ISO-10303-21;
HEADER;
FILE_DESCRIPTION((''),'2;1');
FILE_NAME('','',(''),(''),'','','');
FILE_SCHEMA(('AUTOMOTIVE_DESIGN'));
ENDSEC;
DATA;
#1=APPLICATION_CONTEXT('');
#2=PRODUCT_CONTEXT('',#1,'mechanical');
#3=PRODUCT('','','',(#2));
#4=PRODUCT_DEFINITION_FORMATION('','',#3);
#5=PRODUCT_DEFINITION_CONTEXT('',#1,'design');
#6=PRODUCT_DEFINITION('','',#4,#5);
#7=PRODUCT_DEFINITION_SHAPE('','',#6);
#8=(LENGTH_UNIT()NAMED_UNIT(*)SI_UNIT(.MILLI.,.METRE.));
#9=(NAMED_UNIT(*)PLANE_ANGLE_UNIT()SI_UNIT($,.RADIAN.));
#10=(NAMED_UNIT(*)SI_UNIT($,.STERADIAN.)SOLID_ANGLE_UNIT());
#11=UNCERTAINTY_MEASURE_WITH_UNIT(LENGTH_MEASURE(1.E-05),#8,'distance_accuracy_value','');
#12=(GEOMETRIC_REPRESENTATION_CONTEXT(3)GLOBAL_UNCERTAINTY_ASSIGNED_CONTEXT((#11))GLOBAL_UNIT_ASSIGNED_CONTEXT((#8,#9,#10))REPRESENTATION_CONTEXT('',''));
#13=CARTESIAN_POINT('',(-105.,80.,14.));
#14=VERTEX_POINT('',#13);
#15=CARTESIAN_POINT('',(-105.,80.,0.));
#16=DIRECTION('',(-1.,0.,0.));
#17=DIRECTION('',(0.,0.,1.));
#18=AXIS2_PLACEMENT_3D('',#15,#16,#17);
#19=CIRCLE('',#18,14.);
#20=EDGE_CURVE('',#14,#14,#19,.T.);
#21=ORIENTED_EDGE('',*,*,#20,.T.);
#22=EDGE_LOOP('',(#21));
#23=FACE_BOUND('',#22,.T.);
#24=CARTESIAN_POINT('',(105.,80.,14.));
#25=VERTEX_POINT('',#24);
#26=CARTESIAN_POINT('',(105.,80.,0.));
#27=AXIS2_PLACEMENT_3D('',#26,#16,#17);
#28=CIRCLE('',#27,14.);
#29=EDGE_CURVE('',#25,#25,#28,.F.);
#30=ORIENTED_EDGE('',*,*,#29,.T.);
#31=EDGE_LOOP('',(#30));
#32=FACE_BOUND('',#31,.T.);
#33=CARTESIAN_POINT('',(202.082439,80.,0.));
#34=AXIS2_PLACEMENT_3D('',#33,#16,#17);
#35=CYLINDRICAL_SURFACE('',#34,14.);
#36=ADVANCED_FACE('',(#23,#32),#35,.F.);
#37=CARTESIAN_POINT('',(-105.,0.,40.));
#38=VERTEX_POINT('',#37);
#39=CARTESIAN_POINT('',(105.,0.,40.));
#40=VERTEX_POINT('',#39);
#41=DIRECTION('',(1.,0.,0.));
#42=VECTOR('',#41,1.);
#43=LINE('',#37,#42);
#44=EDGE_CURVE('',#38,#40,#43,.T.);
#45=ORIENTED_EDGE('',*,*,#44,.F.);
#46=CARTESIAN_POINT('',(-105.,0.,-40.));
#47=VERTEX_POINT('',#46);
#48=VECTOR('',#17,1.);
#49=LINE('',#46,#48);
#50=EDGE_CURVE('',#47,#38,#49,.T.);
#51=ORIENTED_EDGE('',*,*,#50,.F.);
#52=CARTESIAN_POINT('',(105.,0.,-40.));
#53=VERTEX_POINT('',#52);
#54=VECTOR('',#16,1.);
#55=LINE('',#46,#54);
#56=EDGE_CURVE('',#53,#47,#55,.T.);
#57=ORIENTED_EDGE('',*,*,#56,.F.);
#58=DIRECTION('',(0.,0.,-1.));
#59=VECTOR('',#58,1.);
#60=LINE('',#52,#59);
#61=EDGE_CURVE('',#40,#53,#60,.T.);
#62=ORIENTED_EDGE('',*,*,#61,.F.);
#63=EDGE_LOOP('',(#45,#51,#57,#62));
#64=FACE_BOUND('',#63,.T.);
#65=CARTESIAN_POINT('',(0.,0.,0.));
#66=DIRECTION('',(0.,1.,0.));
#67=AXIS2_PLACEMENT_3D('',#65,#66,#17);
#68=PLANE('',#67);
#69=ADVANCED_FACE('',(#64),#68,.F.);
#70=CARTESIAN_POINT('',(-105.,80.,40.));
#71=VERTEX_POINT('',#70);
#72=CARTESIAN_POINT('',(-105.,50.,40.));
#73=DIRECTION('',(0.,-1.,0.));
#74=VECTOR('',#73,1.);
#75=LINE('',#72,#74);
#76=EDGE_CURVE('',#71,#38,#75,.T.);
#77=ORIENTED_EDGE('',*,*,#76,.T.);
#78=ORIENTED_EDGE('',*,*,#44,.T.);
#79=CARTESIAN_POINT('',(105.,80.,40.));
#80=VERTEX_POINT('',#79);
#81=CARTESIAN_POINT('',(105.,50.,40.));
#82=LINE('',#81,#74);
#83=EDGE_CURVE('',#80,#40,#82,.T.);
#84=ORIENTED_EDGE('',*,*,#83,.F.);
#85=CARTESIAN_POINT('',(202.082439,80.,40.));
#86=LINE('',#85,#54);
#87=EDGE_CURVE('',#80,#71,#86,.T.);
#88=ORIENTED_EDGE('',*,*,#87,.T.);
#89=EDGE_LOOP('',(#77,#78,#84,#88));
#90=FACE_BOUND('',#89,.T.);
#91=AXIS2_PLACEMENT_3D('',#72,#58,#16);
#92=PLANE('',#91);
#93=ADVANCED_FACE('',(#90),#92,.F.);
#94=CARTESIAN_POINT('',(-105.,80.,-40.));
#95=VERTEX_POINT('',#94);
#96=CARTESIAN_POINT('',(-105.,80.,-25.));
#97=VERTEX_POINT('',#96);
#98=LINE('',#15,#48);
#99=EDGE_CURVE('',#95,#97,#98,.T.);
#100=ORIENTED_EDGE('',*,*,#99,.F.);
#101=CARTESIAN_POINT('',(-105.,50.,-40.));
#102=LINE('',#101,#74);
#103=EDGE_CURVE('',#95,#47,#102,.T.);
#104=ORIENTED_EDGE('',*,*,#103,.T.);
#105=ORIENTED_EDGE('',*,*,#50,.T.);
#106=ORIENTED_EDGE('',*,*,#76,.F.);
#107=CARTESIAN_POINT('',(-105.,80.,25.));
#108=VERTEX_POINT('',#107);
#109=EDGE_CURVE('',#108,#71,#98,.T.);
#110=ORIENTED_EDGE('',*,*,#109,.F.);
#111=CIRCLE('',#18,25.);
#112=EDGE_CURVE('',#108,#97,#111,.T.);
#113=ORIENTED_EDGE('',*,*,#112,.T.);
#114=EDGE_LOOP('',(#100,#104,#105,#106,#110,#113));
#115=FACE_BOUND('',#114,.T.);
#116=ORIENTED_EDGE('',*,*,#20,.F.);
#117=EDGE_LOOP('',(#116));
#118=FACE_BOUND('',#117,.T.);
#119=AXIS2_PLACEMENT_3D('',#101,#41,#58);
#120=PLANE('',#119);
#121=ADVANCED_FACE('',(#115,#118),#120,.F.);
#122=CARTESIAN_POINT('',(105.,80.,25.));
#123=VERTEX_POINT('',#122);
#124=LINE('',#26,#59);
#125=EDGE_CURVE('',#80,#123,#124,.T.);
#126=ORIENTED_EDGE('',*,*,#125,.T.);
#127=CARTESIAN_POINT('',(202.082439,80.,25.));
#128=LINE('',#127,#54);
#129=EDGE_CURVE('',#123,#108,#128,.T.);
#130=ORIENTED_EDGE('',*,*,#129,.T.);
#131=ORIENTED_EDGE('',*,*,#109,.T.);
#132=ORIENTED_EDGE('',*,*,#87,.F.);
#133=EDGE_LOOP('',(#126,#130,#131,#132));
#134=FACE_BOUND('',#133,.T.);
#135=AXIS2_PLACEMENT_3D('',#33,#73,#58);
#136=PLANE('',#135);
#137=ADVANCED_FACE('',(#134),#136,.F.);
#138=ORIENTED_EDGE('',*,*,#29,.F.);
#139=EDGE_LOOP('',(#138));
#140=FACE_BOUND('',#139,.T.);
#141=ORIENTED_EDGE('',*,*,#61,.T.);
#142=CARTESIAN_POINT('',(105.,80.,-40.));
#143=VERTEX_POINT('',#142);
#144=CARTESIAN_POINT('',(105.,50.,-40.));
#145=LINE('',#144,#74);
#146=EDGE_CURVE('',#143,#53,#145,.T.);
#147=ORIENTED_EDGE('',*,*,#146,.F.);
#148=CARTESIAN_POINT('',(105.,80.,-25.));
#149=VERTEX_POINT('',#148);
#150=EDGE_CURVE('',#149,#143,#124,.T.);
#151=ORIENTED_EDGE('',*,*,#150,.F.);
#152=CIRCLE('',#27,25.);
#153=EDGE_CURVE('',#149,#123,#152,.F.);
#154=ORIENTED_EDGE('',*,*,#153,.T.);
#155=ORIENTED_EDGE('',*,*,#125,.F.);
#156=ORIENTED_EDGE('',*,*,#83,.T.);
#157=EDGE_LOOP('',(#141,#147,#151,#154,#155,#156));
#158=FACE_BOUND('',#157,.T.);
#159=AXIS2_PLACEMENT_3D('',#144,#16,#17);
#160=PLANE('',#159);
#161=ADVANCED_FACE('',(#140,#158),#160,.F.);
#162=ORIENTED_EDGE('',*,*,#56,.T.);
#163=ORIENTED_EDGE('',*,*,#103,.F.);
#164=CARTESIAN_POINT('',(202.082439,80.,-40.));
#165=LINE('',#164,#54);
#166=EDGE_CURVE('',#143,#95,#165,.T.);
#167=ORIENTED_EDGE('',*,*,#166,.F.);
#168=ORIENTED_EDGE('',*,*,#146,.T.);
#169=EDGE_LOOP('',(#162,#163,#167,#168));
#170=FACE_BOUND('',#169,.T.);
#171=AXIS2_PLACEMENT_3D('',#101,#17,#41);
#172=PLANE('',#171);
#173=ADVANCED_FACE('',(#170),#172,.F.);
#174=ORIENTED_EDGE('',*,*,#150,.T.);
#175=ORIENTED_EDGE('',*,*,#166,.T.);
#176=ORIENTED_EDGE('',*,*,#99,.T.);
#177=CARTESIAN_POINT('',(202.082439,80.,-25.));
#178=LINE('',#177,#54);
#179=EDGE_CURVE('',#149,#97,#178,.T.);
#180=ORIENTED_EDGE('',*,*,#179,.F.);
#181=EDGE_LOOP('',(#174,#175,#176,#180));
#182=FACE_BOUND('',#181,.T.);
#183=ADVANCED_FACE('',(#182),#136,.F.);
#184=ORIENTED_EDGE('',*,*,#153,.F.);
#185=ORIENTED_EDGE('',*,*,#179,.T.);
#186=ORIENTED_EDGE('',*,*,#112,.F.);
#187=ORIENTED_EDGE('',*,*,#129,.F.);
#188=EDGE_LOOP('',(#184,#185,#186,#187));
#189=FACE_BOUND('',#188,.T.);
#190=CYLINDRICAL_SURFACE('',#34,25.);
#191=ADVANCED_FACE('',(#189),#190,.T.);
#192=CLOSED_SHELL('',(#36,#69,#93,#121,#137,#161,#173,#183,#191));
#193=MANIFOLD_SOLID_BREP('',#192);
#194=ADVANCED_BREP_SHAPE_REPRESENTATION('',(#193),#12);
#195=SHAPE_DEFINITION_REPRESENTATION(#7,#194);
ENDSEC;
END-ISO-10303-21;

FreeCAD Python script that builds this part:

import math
import FreeCAD as App
import Part
import Sketcher

V = App.Vector

doc = App.newDocument("Part")
body = doc.addObject("PartDesign::Body", "Body")

# Sketch on XZ plane
sketch1 = doc.addObject("Sketcher::SketchObject", "Sketch")
body.addObject(sketch1)
sketch1.AttachmentSupport = (doc.XZ_Plane, [""])
sketch1.MapMode = "FlatFace"
sketch1.addGeometry(Part.LineSegment(V(-105, -40, 0), V(-105, 40, 0)), False)
sketch1.addGeometry(Part.LineSegment(V(-105, 40, 0), V(105, 40, 0)), False)
sketch1.addGeometry(Part.LineSegment(V(105, 40, 0), V(105, -40, 0)), False)
sketch1.addGeometry(Part.LineSegment(V(105, -40, 0), V(-105, -40, 0)), False)
sketch1.addConstraint(Sketcher.Constraint("Coincident", 0, 2, 1, 1))
sketch1.addConstraint(Sketcher.Constraint("Coincident", 1, 2, 2, 1))
sketch1.addConstraint(Sketcher.Constraint("Coincident", 2, 2, 3, 1))
sketch1.addConstraint(Sketcher.Constraint("Coincident", 3, 2, 0, 1))
sketch1.addConstraint(Sketcher.Constraint("Vertical", 0))
sketch1.addConstraint(Sketcher.Constraint("Horizontal", 1))
sketch1.addConstraint(Sketcher.Constraint("Vertical", 2))
sketch1.addConstraint(Sketcher.Constraint("Horizontal", 3))
sketch1.addConstraint(Sketcher.Constraint("Symmetric", 0, 2, 2, 2, -1, 1))
sketch1.addConstraint(Sketcher.Constraint("DistanceX", 1, 1, 1, 2, 210.0))
sketch1.addConstraint(Sketcher.Constraint("DistanceY", 0, 1, 0, 2, 80.0))
pad1 = doc.addObject("PartDesign::Pad", "Pad")
body.addObject(pad1)
pad1.Profile = sketch1
pad1.Length = 50
pad1.Reversed = True

# Sketch on YZ plane
sketch2 = doc.addObject("Sketcher::SketchObject", "Sketch001")
body.addObject(sketch2)
sketch2.AttachmentSupport = (doc.YZ_Plane, [""])
sketch2.MapMode = "FlatFace"
sketch2.AttachmentOffset = App.Placement(V(0, 0, -105), App.Rotation())
sketch2.addGeometry(Part.LineSegment(V(80, 40, 0), V(80, 25, 0)), False)
sketch2.addGeometry(Part.ArcOfCircle(Part.Circle(V(80, 0, 0), V(0, 0, 1), 25), math.radians(-90), math.radians(90)), False)
sketch2.addGeometry(Part.LineSegment(V(80, -25, 0), V(80, -40, 0)), False)
sketch2.addGeometry(Part.LineSegment(V(80, -40, 0), V(50, -40, 0)), False)
sketch2.addGeometry(Part.LineSegment(V(50, -40, 0), V(50, 40, 0)), False)
sketch2.addGeometry(Part.LineSegment(V(50, 40, 0), V(80, 40, 0)), False)
sketch2.addGeometry(Part.Circle(V(80, 0, 0), V(0, 0, 1), 14), False)
sketch2.addConstraint(Sketcher.Constraint("Coincident", 0, 2, 1, 2))
sketch2.addConstraint(Sketcher.Constraint("Coincident", 1, 1, 2, 1))
sketch2.addConstraint(Sketcher.Constraint("Coincident", 2, 2, 3, 1))
sketch2.addConstraint(Sketcher.Constraint("Coincident", 3, 2, 4, 1))
sketch2.addConstraint(Sketcher.Constraint("Coincident", 4, 2, 5, 1))
sketch2.addConstraint(Sketcher.Constraint("Coincident", 5, 2, 0, 1))
sketch2.addConstraint(Sketcher.Constraint("Vertical", 0))
sketch2.addConstraint(Sketcher.Constraint("Vertical", 2))
sketch2.addConstraint(Sketcher.Constraint("Horizontal", 3))
sketch2.addConstraint(Sketcher.Constraint("Vertical", 4))
sketch2.addConstraint(Sketcher.Constraint("Horizontal", 5))
sketch2.addConstraint(Sketcher.Constraint("Coincident", 6, 3, 1, 3))
sketch2.addConstraint(Sketcher.Constraint("Symmetric", 0, 2, 1, 1, -1))
sketch2.addConstraint(Sketcher.Constraint("Vertical", 6, 3, 0, 2))
sketch2.addConstraint(Sketcher.Constraint("Equal", 0, 2))
sketch2.addConstraint(Sketcher.Constraint("Diameter", 6, 28.0))
sketch2.addConstraint(Sketcher.Constraint("Radius", 1, 25.0))
sketch2.addConstraint(Sketcher.Constraint("DistanceX", 3, 2, 3, 1, 30.0))
sketch2.addConstraint(Sketcher.Constraint("DistanceY", 0, 2, 0, 1, 15.0))
sketch2.addConstraint(Sketcher.Constraint("DistanceX", -1, 1, 1, 3, 80.0))
pad2 = doc.addObject("PartDesign::Pad", "Pad001")
body.addObject(pad2)
pad2.Profile = sketch2
pad2.Length = 210

doc.recompute()
